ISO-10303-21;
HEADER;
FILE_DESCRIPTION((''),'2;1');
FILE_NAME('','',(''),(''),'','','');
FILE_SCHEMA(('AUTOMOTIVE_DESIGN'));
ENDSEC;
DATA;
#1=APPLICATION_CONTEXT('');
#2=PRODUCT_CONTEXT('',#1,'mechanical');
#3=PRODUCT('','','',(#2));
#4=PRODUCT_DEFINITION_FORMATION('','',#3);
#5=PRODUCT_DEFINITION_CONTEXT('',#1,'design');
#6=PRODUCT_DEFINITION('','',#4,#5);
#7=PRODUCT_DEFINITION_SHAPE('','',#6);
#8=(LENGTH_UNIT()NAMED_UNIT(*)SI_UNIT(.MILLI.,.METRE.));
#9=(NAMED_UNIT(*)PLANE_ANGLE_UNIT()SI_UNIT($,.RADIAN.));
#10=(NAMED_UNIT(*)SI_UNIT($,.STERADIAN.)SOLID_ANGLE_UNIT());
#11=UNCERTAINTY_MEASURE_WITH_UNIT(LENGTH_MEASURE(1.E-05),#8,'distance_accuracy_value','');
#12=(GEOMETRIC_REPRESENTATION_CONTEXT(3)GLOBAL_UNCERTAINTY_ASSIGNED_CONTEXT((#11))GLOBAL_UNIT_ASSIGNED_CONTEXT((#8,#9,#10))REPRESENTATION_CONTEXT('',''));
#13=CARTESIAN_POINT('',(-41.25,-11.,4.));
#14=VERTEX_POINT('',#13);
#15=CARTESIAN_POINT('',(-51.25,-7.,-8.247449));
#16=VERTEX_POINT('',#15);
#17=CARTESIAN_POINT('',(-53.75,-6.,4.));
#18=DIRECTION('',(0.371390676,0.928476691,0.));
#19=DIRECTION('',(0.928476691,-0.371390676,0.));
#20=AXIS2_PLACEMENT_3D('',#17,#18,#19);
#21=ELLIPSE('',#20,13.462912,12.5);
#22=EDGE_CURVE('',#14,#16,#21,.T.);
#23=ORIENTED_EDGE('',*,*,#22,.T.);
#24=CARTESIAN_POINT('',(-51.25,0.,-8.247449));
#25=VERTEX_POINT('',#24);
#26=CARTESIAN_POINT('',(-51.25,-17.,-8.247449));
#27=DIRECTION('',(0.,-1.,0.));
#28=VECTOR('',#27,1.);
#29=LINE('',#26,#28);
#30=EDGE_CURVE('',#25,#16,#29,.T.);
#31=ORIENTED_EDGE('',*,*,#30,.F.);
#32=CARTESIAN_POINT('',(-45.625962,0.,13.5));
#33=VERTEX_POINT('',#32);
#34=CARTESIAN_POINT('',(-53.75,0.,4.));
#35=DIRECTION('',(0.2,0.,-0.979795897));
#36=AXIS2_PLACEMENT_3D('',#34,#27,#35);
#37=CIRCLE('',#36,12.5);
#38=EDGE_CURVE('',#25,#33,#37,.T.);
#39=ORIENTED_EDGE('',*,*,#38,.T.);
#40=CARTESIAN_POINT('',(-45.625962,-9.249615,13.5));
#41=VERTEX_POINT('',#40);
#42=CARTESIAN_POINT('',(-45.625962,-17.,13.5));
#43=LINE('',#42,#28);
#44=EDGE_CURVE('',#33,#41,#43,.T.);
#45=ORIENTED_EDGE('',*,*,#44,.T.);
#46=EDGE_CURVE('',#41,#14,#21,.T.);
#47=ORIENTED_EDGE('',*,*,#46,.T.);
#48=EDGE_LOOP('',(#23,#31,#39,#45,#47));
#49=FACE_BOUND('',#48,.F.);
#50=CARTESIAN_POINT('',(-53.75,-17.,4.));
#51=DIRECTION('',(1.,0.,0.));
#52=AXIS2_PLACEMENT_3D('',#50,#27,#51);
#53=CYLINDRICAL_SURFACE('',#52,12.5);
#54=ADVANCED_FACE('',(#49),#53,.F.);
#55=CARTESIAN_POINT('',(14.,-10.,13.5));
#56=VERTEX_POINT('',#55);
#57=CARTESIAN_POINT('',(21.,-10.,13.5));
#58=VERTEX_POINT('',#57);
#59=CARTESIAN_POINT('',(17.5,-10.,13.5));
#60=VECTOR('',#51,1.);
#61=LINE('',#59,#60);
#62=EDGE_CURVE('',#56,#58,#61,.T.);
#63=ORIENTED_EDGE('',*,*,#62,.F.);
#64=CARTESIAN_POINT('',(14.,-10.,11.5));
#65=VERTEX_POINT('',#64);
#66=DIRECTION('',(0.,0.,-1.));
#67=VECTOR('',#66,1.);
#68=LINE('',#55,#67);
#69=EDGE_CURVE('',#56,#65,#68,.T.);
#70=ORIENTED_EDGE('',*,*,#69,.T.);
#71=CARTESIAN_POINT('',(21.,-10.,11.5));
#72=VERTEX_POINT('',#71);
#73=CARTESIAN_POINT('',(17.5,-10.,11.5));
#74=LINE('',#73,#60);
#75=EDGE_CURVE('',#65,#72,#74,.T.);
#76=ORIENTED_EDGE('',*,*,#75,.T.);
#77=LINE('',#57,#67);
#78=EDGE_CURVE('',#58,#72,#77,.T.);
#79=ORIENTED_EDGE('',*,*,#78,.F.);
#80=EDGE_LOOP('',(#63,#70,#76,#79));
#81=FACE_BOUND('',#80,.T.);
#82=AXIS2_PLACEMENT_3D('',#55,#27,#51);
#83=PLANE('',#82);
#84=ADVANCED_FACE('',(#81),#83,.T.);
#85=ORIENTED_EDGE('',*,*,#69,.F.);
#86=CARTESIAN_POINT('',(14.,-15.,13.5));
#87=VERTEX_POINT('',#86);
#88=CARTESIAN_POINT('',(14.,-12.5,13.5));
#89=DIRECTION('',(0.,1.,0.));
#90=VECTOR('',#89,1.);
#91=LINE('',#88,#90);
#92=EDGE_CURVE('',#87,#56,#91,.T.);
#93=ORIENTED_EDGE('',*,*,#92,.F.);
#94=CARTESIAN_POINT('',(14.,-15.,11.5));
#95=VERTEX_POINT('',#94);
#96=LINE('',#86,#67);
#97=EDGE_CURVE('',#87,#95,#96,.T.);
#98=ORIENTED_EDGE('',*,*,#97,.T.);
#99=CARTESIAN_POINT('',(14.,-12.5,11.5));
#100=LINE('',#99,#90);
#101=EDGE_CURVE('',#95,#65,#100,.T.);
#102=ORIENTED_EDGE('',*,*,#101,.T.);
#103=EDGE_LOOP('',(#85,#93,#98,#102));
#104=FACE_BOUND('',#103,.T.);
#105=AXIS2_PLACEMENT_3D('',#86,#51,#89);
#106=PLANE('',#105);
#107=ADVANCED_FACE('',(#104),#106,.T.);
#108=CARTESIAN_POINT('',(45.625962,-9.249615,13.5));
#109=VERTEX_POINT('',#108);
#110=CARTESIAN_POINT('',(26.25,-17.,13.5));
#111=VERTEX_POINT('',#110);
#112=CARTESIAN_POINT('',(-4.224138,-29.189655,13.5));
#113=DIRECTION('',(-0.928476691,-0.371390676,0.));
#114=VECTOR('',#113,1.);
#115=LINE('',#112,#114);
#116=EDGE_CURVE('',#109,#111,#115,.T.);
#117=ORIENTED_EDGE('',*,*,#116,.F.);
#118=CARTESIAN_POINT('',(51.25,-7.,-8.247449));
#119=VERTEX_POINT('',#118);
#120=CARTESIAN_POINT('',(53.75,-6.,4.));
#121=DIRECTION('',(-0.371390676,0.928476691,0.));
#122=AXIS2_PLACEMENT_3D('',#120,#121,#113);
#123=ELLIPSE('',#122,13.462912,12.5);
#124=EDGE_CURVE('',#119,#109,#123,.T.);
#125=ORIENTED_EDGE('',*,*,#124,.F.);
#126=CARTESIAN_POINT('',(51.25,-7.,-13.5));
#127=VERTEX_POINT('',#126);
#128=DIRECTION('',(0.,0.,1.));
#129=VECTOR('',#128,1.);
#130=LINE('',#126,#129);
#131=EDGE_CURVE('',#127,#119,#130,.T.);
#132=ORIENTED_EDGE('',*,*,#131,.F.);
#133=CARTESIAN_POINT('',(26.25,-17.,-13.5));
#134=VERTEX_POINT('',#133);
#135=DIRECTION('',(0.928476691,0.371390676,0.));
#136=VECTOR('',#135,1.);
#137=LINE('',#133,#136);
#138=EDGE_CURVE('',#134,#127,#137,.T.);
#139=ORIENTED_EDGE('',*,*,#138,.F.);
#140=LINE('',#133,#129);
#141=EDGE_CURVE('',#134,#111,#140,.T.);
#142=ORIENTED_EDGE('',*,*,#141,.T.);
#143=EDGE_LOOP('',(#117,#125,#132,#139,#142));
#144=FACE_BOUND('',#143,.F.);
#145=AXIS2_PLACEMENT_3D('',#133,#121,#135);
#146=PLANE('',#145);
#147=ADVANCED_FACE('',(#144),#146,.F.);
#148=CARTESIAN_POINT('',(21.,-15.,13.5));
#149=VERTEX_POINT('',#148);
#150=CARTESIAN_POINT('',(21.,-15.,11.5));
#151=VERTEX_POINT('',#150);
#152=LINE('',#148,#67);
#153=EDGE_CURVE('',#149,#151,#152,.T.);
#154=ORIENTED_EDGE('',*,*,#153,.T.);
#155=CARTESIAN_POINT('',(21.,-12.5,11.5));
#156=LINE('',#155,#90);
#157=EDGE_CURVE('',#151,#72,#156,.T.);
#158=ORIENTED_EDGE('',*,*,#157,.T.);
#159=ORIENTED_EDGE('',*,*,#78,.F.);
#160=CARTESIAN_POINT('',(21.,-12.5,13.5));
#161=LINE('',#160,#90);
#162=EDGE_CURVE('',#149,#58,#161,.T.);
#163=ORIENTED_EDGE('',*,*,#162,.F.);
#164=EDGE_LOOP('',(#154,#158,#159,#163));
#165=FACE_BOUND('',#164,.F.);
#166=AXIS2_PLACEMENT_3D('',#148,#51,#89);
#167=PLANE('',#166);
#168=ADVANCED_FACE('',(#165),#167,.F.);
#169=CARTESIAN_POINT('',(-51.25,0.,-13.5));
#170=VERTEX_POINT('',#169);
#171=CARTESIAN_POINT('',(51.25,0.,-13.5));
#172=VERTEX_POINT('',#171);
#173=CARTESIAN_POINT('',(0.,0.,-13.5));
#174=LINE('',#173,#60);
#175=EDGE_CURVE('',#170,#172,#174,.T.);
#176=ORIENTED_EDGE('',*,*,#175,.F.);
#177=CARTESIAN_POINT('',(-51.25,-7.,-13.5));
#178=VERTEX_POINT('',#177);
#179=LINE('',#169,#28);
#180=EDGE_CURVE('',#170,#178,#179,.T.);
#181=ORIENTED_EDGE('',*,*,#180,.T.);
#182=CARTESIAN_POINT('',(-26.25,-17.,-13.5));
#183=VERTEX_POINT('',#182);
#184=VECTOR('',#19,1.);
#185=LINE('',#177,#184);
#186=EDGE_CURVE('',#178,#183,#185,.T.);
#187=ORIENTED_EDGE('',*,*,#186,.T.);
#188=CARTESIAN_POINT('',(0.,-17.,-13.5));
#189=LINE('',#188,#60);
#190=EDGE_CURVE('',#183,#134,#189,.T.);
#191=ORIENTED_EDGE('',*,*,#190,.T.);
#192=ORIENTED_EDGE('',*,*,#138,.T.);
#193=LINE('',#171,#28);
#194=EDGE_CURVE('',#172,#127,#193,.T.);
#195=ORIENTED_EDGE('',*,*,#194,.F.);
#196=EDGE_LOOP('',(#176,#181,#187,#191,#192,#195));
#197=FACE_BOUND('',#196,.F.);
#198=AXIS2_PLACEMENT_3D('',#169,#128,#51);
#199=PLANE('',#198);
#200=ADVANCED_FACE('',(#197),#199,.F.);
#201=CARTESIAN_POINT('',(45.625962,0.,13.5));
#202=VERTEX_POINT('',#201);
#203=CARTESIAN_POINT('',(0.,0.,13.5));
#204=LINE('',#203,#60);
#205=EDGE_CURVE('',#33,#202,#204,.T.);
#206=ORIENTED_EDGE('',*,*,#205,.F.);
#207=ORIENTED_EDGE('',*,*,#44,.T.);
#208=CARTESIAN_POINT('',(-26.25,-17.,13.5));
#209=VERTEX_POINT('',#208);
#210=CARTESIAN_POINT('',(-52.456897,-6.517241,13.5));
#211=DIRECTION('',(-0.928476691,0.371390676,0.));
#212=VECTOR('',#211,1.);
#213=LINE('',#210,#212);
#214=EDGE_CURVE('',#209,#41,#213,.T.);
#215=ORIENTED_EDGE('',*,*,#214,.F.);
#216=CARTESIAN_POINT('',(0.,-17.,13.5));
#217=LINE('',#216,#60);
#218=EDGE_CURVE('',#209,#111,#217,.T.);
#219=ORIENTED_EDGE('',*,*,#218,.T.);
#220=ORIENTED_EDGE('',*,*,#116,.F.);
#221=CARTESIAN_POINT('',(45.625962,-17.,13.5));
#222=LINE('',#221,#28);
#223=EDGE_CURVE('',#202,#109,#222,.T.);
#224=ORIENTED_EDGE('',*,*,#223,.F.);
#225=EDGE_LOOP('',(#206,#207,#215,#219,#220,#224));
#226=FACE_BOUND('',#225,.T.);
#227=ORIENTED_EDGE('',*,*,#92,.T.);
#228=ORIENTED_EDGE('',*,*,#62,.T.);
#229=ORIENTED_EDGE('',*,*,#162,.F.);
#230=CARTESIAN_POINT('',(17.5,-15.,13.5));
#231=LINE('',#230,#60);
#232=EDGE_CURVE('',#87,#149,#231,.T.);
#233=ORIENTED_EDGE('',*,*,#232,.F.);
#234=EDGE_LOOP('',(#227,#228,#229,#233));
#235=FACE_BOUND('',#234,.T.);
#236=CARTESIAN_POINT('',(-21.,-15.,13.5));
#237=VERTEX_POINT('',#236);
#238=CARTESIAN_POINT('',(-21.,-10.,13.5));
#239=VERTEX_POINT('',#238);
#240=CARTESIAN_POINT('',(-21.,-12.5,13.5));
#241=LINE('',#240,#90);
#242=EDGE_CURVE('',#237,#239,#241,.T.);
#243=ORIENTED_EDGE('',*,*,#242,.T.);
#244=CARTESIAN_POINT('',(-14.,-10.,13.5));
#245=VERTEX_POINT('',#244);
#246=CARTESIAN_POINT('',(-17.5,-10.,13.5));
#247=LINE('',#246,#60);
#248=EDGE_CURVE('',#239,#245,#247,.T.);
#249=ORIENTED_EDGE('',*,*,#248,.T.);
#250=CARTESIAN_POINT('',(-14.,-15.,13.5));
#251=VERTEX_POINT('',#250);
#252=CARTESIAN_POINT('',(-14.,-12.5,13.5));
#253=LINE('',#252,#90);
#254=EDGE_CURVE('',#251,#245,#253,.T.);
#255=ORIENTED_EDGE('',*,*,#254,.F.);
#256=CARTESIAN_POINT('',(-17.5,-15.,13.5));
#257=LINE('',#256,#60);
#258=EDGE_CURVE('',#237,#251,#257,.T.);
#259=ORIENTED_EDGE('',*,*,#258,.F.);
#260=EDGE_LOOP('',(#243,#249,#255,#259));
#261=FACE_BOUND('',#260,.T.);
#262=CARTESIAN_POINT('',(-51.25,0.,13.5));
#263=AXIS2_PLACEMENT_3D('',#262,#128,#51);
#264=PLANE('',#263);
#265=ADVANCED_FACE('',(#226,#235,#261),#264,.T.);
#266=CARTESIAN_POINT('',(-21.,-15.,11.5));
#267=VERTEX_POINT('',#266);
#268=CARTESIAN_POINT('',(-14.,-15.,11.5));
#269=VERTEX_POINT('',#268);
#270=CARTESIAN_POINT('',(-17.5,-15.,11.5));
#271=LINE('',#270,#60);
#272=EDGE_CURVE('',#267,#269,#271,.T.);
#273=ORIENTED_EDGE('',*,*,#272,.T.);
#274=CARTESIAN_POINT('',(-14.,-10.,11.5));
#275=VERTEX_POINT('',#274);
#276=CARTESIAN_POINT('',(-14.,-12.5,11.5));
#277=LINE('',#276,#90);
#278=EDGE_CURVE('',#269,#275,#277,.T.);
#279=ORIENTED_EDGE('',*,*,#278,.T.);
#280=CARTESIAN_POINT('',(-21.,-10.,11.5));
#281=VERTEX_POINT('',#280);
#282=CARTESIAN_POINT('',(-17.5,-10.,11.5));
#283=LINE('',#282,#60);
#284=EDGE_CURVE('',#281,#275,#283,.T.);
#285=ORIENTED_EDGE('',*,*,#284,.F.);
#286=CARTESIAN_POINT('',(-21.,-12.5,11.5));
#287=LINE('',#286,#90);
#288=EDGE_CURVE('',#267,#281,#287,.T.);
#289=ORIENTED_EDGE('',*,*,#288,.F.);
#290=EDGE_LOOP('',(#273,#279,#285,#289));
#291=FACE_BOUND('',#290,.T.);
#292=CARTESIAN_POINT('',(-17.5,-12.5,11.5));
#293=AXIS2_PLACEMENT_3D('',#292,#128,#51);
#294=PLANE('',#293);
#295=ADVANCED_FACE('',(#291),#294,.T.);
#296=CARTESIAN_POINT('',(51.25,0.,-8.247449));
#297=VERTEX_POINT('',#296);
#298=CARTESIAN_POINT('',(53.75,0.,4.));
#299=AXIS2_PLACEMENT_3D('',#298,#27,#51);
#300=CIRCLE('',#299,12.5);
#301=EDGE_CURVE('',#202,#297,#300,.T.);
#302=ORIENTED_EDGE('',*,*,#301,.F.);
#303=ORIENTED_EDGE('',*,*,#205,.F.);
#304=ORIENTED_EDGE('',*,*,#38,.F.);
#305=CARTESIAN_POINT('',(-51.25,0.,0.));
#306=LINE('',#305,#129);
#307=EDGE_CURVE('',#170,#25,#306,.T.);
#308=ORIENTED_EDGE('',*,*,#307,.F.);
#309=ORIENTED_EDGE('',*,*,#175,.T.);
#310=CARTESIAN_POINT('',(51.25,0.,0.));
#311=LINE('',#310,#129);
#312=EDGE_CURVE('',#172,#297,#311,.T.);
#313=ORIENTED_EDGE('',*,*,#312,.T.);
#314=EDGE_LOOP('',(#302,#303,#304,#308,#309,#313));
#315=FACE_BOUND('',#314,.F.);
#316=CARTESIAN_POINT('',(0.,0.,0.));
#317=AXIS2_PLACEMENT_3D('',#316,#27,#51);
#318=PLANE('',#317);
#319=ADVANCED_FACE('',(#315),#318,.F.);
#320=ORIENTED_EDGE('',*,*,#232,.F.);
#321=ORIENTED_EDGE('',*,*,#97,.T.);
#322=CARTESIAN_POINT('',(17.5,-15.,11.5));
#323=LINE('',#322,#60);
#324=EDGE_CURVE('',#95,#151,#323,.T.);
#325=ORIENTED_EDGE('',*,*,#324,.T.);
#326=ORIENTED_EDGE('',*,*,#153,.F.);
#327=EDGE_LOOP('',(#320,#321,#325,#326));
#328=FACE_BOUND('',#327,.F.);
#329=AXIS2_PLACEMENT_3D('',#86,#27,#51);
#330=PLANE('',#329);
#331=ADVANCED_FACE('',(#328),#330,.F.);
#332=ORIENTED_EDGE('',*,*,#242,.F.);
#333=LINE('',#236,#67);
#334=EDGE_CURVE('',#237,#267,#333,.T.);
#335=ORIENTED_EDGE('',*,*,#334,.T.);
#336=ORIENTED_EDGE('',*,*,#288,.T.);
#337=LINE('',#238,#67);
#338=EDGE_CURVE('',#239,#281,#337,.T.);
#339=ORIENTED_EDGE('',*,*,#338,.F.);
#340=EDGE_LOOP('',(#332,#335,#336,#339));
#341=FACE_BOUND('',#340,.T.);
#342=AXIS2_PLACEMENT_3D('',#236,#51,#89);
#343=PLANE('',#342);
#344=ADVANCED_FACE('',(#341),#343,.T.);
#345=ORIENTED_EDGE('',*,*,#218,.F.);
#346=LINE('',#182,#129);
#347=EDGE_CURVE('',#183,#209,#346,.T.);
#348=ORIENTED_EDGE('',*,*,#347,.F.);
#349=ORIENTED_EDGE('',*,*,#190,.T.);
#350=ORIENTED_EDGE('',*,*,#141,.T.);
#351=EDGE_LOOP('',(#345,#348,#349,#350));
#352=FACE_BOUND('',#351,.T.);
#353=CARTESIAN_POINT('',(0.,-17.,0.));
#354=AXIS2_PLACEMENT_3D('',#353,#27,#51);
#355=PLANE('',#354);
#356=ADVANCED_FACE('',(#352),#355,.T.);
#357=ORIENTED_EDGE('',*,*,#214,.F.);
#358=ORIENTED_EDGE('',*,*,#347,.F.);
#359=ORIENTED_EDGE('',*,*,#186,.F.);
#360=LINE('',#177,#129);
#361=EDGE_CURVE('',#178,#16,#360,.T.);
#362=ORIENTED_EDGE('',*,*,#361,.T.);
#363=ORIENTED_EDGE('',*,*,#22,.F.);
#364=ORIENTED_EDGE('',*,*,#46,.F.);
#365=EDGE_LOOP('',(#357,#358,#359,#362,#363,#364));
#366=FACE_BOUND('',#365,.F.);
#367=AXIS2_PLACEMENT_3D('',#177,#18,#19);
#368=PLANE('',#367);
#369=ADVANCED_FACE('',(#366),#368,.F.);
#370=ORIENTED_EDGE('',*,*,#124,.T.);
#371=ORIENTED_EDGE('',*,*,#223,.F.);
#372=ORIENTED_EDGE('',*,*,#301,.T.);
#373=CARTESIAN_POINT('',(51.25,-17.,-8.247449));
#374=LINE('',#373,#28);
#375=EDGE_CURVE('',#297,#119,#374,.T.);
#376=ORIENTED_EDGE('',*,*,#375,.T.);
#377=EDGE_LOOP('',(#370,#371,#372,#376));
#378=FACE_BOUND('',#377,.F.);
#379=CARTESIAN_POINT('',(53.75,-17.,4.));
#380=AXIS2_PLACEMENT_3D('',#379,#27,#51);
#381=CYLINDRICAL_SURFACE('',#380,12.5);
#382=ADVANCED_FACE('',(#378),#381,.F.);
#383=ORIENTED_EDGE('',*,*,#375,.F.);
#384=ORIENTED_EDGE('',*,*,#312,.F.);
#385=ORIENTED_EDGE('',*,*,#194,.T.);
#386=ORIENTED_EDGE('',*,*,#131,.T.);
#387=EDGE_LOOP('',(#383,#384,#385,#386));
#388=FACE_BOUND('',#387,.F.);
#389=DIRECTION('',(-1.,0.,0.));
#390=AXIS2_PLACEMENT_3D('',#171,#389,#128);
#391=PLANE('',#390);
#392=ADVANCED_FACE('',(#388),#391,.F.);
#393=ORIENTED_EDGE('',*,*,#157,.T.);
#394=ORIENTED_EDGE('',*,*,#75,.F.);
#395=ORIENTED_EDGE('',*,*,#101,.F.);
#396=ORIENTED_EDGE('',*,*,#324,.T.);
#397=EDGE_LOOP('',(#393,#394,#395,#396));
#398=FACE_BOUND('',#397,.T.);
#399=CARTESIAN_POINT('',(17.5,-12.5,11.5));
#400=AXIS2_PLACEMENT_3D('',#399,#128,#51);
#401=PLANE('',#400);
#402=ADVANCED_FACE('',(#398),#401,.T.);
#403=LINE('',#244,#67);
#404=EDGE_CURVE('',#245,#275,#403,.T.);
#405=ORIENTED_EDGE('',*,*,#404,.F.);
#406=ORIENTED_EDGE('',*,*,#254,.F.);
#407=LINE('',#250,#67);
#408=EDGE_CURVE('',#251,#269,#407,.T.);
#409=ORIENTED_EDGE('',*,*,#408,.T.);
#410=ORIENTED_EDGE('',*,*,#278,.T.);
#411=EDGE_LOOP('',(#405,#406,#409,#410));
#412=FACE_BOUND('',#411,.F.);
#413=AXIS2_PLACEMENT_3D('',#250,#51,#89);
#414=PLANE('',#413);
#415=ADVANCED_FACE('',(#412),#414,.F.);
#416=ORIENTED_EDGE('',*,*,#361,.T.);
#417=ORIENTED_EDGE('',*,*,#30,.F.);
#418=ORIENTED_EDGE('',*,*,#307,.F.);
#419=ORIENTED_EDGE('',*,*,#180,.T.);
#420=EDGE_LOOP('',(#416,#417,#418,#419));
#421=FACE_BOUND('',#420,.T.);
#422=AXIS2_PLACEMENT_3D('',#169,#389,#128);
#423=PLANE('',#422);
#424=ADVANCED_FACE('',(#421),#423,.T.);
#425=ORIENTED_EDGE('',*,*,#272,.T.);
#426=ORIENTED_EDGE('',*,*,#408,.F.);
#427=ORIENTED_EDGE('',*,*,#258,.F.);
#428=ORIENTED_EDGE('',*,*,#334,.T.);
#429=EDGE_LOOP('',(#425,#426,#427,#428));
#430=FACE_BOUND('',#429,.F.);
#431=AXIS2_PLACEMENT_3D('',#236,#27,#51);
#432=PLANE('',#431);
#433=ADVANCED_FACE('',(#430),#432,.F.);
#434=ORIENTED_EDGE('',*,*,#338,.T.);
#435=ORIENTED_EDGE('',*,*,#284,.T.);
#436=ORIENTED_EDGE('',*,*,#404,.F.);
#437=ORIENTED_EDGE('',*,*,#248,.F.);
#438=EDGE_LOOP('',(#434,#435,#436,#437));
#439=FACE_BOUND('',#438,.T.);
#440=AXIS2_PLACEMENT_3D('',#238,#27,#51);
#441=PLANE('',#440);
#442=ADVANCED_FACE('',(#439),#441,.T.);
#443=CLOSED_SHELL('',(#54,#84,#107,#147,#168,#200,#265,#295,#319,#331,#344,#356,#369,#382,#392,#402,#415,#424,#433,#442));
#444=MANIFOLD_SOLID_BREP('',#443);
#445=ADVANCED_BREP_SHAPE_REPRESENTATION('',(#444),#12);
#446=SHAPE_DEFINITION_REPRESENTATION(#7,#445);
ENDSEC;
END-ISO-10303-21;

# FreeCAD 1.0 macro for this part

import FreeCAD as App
import Part
import Sketcher
from FreeCAD import Vector


def add_polygon(sketch, points):
    """Adds a closed chain of lines whose ends are joined by coincident constraints."""
    first, n = sketch.GeometryCount, len(points)
    for a, b in zip(points, points[1:] + points[:1]):
        sketch.addGeometry(Part.LineSegment(App.Vector(*a, 0), App.Vector(*b, 0)), False)
    for i in range(n):
        sketch.addConstraint(Sketcher.Constraint("Coincident", first + i, 2, first + (i + 1) % n, 1))

doc = App.newDocument("Part")
body = doc.addObject("PartDesign::Body", "Body")

# Sketch on XZ plane
sketch1 = body.newObject("Sketcher::SketchObject", "Sketch")
sketch1.AttachmentSupport = (doc.getObject("XZ_Plane"), [""])
sketch1.MapMode = "FlatFace"
add_polygon(sketch1, [(-51.25, 13.5), (-51.25, -13.5), (51.25, -13.5), (51.25, 13.5)])  # lines 0-3
sketch1.addConstraint([
    Sketcher.Constraint("Vertical", 0),
    Sketcher.Constraint("Horizontal", 1),
    Sketcher.Constraint("Vertical", 2),
    Sketcher.Constraint("Horizontal", 3),
    Sketcher.Constraint("Symmetric", 0, 2, 2, 2, -1, 1),
    Sketcher.Constraint("DistanceY", 0, 2, 0, 1, 27.0),
    Sketcher.Constraint("DistanceX", 1, 1, 1, 2, 102.5),
])
pad1 = body.newObject("PartDesign::Pad", "Pad")
pad1.Profile = sketch1
pad1.Length = 17

# Sketch on XY plane
sketch2 = body.newObject("Sketcher::SketchObject", "Sketch001")
sketch2.AttachmentSupport = (doc.getObject("XY_Plane"), [""])
sketch2.MapMode = "FlatFace"
sketch2.AttachmentOffset = App.Placement(Vector(0, 0, -13.5), App.Rotation())
add_polygon(sketch2, [(-51.25, -7), (-26.25, -17), (-51.25, -17)])  # lines 0-2
add_polygon(sketch2, [(51.25, -17), (26.25, -17), (51.25, -7)])  # lines 3-5
sketch2.addConstraint([
    Sketcher.Constraint("Horizontal", 1),
    Sketcher.Constraint("Vertical", 2),
    Sketcher.Constraint("Horizontal", 3),
    Sketcher.Constraint("Vertical", 5),
    Sketcher.Constraint("Symmetric", 0, 2, 3, 2, -2),
    Sketcher.Constraint("Symmetric", 2, 2, 4, 2, -2),
    Sketcher.Constraint("DistanceX", 1, 2, 1, 1, 25.0),
    Sketcher.Constraint("DistanceY", 2, 1, 2, 2, 10.0),
    Sketcher.Constraint("DistanceY", 0, 2, -1, 1, 17.0),
    Sketcher.Constraint("DistanceX", 0, 2, 3, 2, 52.5),
])
pocket1 = body.newObject("PartDesign::Pocket", "Pocket")
pocket1.Profile = sketch2
pocket1.Length = 190
pocket1.Reversed = True

# Sketch on XZ plane
sketch3 = body.newObject("Sketcher::SketchObject", "Sketch002")
sketch3.AttachmentSupport = (doc.getObject("XZ_Plane"), [""])
sketch3.MapMode = "FlatFace"
sketch3.AttachmentOffset = App.Placement(Vector(0, 0, 17), App.Rotation())
sketch3.addGeometry([
    Part.Circle(Vector(-53.75, 4, 0), Vector(0, 0, 1), 12.5),
    Part.Circle(Vector(53.75, 4, 0), Vector(0, 0, 1), 12.5),
], False)
sketch3.addConstraint([
    Sketcher.Constraint("Equal", 0, 1),
    Sketcher.Constraint("Symmetric", 0, 3, 1, 3, -2),
    Sketcher.Constraint("Diameter", 0, 25.0),
    Sketcher.Constraint("DistanceY", -1, 1, 0, 3, 4.0),
    Sketcher.Constraint("DistanceX", 0, 3, 1, 3, 107.5),
])
pocket2 = body.newObject("PartDesign::Pocket", "Pocket001")
pocket2.Profile = sketch3
pocket2.Length = 25

# Sketch on XY plane
sketch4 = body.newObject("Sketcher::SketchObject", "Sketch003")
sketch4.AttachmentSupport = (doc.getObject("XY_Plane"), [""])
sketch4.MapMode = "FlatFace"
sketch4.AttachmentOffset = App.Placement(Vector(0, 0, 13.5), App.Rotation())
add_polygon(sketch4, [(14, -10), (14, -15), (21, -15), (21, -10)])  # lines 0-3
add_polygon(sketch4, [(-21, -10), (-21, -15), (-14, -15), (-14, -10)])  # lines 4-7
sketch4.addConstraint([
    Sketcher.Constraint("Vertical", 0),
    Sketcher.Constraint("Horizontal", 1),
    Sketcher.Constraint("Vertical", 2),
    Sketcher.Constraint("Horizontal", 3),
    Sketcher.Constraint("Vertical", 4),
    Sketcher.Constraint("Horizontal", 5),
    Sketcher.Constraint("Vertical", 6),
    Sketcher.Constraint("Horizontal", 7),
    Sketcher.Constraint("Symmetric", 1, 2, 4, 2, -2),
    Sketcher.Constraint("Symmetric", 3, 2, 6, 2, -2),
    Sketcher.Constraint("DistanceX", 1, 1, 1, 2, 7.0),
    Sketcher.Constraint("DistanceY", 0, 2, 0, 1, 5.0),
    Sketcher.Constraint("DistanceX", -1, 1, 0, 2, 14.0),
    Sketcher.Constraint("DistanceY", 0, 2, -1, 1, 15.0),
])
pocket3 = body.newObject("PartDesign::Pocket", "Pocket002")
pocket3.Profile = sketch4
pocket3.Length = 2

doc.recompute()
